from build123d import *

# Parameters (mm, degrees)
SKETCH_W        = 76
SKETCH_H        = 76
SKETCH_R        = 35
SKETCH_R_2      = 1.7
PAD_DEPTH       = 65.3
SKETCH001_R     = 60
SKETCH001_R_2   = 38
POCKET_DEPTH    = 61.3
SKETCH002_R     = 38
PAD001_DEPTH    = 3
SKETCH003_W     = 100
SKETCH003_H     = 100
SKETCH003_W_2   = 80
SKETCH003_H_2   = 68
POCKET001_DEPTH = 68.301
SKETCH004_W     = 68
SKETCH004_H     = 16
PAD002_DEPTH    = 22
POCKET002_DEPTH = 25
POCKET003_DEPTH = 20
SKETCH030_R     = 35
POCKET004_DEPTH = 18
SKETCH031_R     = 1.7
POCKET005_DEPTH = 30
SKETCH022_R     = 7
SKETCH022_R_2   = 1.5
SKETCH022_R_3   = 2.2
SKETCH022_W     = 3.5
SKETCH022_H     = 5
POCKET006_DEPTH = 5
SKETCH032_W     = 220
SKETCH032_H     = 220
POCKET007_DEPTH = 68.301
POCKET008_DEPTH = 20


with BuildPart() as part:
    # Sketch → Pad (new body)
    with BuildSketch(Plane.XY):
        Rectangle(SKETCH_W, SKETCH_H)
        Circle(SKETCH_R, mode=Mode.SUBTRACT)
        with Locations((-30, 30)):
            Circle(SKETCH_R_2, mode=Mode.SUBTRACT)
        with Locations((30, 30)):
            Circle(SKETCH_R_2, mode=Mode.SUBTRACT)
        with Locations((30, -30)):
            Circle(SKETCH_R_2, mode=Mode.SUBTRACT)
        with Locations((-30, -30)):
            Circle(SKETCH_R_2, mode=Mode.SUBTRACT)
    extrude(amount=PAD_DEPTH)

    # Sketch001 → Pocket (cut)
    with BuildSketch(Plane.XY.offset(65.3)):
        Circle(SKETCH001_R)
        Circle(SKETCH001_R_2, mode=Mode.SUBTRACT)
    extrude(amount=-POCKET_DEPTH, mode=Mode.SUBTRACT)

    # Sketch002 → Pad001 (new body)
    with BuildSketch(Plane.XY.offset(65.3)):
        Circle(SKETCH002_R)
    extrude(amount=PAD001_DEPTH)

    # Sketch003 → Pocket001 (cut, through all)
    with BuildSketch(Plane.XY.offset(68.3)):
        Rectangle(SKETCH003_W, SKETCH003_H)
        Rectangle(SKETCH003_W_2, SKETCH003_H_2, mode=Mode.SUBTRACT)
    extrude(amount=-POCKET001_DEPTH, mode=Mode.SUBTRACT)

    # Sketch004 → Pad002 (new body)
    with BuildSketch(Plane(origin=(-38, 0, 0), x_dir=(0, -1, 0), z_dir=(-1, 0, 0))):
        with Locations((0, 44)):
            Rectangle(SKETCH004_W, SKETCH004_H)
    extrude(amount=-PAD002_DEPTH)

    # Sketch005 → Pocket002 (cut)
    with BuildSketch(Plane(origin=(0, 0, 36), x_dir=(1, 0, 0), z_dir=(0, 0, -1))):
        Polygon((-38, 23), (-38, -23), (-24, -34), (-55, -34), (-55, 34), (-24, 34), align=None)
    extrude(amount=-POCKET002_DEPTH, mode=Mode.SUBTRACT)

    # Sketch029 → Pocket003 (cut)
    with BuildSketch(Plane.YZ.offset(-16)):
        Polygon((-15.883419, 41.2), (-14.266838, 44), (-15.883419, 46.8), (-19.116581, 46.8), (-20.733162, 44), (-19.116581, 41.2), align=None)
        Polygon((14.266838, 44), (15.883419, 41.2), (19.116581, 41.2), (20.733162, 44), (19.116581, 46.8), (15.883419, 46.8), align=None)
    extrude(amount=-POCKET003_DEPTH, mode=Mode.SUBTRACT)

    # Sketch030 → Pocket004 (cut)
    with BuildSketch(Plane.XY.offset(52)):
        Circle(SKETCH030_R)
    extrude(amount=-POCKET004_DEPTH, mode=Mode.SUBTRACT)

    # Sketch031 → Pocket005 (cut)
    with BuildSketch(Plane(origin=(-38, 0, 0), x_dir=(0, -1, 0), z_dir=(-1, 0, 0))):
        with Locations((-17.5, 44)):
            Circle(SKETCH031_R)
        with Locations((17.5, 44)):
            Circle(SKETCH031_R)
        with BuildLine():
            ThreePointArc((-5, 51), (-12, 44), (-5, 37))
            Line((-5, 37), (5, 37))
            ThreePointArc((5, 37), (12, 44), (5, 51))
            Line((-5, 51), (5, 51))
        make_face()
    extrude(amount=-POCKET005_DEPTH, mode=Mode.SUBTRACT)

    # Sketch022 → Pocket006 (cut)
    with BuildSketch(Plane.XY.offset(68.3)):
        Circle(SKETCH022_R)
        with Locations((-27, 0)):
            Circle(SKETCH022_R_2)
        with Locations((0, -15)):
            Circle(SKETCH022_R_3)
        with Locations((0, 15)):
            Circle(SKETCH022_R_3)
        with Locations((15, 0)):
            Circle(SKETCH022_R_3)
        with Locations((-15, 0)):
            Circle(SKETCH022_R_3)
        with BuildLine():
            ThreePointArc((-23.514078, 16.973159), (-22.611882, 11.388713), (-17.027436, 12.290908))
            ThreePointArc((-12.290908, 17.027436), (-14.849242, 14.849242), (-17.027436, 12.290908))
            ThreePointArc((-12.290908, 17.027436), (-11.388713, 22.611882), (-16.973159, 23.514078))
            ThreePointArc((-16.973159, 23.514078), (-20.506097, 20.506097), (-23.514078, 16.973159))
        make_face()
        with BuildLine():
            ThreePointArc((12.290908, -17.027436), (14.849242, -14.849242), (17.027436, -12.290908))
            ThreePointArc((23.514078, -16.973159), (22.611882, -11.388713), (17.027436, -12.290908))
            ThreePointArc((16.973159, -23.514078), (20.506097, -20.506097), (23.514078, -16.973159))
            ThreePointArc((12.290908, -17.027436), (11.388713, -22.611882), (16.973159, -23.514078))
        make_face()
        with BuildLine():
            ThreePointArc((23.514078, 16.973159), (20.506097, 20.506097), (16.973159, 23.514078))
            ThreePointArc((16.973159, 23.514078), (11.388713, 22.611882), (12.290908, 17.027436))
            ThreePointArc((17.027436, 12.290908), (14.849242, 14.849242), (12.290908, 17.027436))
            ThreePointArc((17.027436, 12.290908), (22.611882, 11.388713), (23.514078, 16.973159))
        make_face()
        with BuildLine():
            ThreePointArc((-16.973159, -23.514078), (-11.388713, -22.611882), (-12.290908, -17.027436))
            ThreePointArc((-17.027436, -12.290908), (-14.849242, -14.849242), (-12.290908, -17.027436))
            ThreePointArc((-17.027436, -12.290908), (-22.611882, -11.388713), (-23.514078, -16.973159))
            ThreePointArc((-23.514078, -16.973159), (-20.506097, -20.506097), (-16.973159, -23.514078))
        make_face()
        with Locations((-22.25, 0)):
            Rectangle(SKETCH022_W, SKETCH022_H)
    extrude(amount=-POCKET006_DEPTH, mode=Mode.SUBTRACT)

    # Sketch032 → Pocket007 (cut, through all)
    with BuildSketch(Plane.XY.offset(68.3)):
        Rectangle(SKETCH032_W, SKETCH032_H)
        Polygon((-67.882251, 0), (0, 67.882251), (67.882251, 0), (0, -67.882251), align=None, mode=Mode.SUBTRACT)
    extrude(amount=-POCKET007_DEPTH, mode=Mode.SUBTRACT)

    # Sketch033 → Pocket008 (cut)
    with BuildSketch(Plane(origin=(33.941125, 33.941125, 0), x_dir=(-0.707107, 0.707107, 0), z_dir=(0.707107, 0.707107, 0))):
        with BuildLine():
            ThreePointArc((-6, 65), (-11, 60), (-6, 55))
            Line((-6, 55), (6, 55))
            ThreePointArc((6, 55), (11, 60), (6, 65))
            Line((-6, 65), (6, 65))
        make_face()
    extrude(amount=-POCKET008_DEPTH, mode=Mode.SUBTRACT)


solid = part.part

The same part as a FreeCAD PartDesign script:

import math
import FreeCAD as App
import Part
import Sketcher
Q = App.Units.Quantity

doc = App.newDocument("Part")
body = doc.addObject("PartDesign::Body", "Body")

sketch1 = body.newObject("Sketcher::SketchObject", "Sketch")
sketch1.AttachmentSupport = (doc.getObject("XY_Plane"), [""])
sketch1.MapMode = "FlatFace"
sketch1.addGeometry([
    Part.LineSegment(App.Vector(-38, 38, 0), App.Vector(-38, -38, 0)),
    Part.LineSegment(App.Vector(-38, -38, 0), App.Vector(38, -38, 0)),
    Part.LineSegment(App.Vector(38, -38, 0), App.Vector(38, 38, 0)),
    Part.LineSegment(App.Vector(38, 38, 0), App.Vector(-38, 38, 0)),
    Part.Circle(App.Vector(-30, -30, 0), App.Vector(0, 0, 1), 1.7),
    Part.Circle(App.Vector(30, -30, 0), App.Vector(0, 0, 1), 1.7),
    Part.Circle(App.Vector(-30, 30, 0), App.Vector(0, 0, 1), 1.7),
    Part.Circle(App.Vector(0, 0, 0), App.Vector(0, 0, 1), 35),
    Part.Circle(App.Vector(30, 30, 0), App.Vector(0, 0, 1), 1.7),
], False)
sketch1.addConstraint([
    Sketcher.Constraint("Coincident", 0, 2, 1, 1),
    Sketcher.Constraint("Coincident", 1, 2, 2, 1),
    Sketcher.Constraint("Coincident", 2, 2, 3, 1),
    Sketcher.Constraint("Coincident", 3, 2, 0, 1),
    Sketcher.Constraint("Vertical", 0),
    Sketcher.Constraint("Horizontal", 1),
    Sketcher.Constraint("Vertical", 2),
    Sketcher.Constraint("Horizontal", 3),
    Sketcher.Constraint("Coincident", 7, 3, -1, 1),
    Sketcher.Constraint("Equal", 4, 5),
    Sketcher.Constraint("Equal", 5, 6),
    Sketcher.Constraint("Equal", 6, 8),
    Sketcher.Constraint("Symmetric", 5, 3, 6, 3, -1, 1),
    Sketcher.Constraint("Symmetric", 4, 3, 8, 3, -1, 1),
    Sketcher.Constraint("Symmetric", 0, 2, 2, 2, -1, 1),
    Sketcher.Constraint("Symmetric", 4, 3, 5, 3, -2),
    Sketcher.Constraint("Equal", 3, 0),
    Sketcher.Constraint("Diameter", 7, 70.0),
    Sketcher.Constraint("Diameter", 4, 3.4),
    Sketcher.Constraint("DistanceX", 1, 1, 1, 2, 76.0),
    Sketcher.Constraint("DistanceX", 4, 3, -1, 1, 30.0),
    Sketcher.Constraint("DistanceY", 4, 3, -1, 1, 30.0),
])
pad1 = body.newObject("PartDesign::Pad", "Pad")
pad1.Profile = sketch1
pad1.Length = 65.3

sketch2 = body.newObject("Sketcher::SketchObject", "Sketch001")
sketch2.AttachmentSupport = (doc.getObject("XY_Plane"), [""])
sketch2.MapMode = "FlatFace"
sketch2.AttachmentOffset = App.Placement(App.Vector(0, 0, 65.3), App.Rotation())
sketch2.addGeometry([
    Part.Circle(App.Vector(0, 0, 0), App.Vector(0, 0, 1), 60),
    Part.Circle(App.Vector(0, 0, 0), App.Vector(0, 0, 1), 38),
], False)
sketch2.addConstraint([
    Sketcher.Constraint("Coincident", 0, 3, -1, 1),
    Sketcher.Constraint("Coincident", 1, 3, -1, 1),
    Sketcher.Constraint("Diameter", 0, 120.0),
    Sketcher.Constraint("Diameter", 1, 76.0),
])
pocket1 = body.newObject("PartDesign::Pocket", "Pocket")
pocket1.Profile = sketch2
pocket1.Length = 61.3

sketch3 = body.newObject("Sketcher::SketchObject", "Sketch002")
sketch3.AttachmentSupport = (doc.getObject("XY_Plane"), [""])
sketch3.MapMode = "FlatFace"
sketch3.AttachmentOffset = App.Placement(App.Vector(0, 0, 65.3), App.Rotation())
sketch3.addGeometry(Part.Circle(App.Vector(0, 0, 0), App.Vector(0, 0, 1), 38), False)
sketch3.addConstraint([
    Sketcher.Constraint("Coincident", 0, 3, -1, 1),
    Sketcher.Constraint("Diameter", 0, 76.0),
])
pad2 = body.newObject("PartDesign::Pad", "Pad001")
pad2.Profile = sketch3
pad2.Length = 3

sketch4 = body.newObject("Sketcher::SketchObject", "Sketch003")
sketch4.AttachmentSupport = (doc.getObject("XY_Plane"), [""])
sketch4.MapMode = "FlatFace"
sketch4.AttachmentOffset = App.Placement(App.Vector(0, 0, 68.3), App.Rotation())
sketch4.addGeometry([
    Part.LineSegment(App.Vector(-50, 50, 0), App.Vector(-50, -50, 0)),
    Part.LineSegment(App.Vector(-50, -50, 0), App.Vector(50, -50, 0)),
    Part.LineSegment(App.Vector(50, -50, 0), App.Vector(50, 50, 0)),
    Part.LineSegment(App.Vector(50, 50, 0), App.Vector(-50, 50, 0)),
    Part.LineSegment(App.Vector(40, -34, 0), App.Vector(-40, -34, 0)),
    Part.LineSegment(App.Vector(-40, -34, 0), App.Vector(-40, 34, 0)),
    Part.LineSegment(App.Vector(-40, 34, 0), App.Vector(40, 34, 0)),
    Part.LineSegment(App.Vector(40, 34, 0), App.Vector(40, -34, 0)),
], False)
sketch4.addConstraint([
    Sketcher.Constraint("Coincident", 0, 2, 1, 1),
    Sketcher.Constraint("Coincident", 1, 2, 2, 1),
    Sketcher.Constraint("Coincident", 2, 2, 3, 1),
    Sketcher.Constraint("Coincident", 3, 2, 0, 1),
    Sketcher.Constraint("Coincident", 4, 2, 5, 1),
    Sketcher.Constraint("Coincident", 5, 2, 6, 1),
    Sketcher.Constraint("Coincident", 6, 2, 7, 1),
    Sketcher.Constraint("Coincident", 7, 2, 4, 1),
    Sketcher.Constraint("Vertical", 0),
    Sketcher.Constraint("Horizontal", 1),
    Sketcher.Constraint("Vertical", 2),
    Sketcher.Constraint("Horizontal", 3),
    Sketcher.Constraint("Horizontal", 4),
    Sketcher.Constraint("Vertical", 5),
    Sketcher.Constraint("Horizontal", 6),
    Sketcher.Constraint("Vertical", 7),
    Sketcher.Constraint("Symmetric", 0, 2, 2, 2, -1, 1),
    Sketcher.Constraint("Symmetric", 4, 2, 6, 2, -1, 1),
    Sketcher.Constraint("Equal", 3, 0),
    Sketcher.Constraint("DistanceX", 1, 1, 1, 2, 100.0),
    Sketcher.Constraint("DistanceX", 4, 2, 4, 1, 80.0),
    Sketcher.Constraint("DistanceY", 5, 1, 5, 2, 68.0),
])
pocket2 = body.newObject("PartDesign::Pocket", "Pocket001")
pocket2.Profile = sketch4
pocket2.Type = "ThroughAll"

sketch5 = body.newObject("Sketcher::SketchObject", "Sketch004")
sketch5.AttachmentSupport = (doc.getObject("YZ_Plane"), [""])
sketch5.MapMode = "FlatFace"
sketch5.AttachmentOffset = App.Placement(App.Vector(0, 0, -38), App.Rotation())
sketch5.addGeometry([
    Part.LineSegment(App.Vector(34, 52, 0), App.Vector(34, 36, 0)),
    Part.LineSegment(App.Vector(34, 36, 0), App.Vector(-34, 36, 0)),
    Part.LineSegment(App.Vector(-34, 36, 0), App.Vector(-34, 52, 0)),
    Part.LineSegment(App.Vector(-34, 52, 0), App.Vector(34, 52, 0)),
], False)
sketch5.addConstraint([
    Sketcher.Constraint("Coincident", 0, 2, 1, 1),
    Sketcher.Constraint("Coincident", 1, 2, 2, 1),
    Sketcher.Constraint("Coincident", 2, 2, 3, 1),
    Sketcher.Constraint("Coincident", 3, 2, 0, 1),
    Sketcher.Constraint("Vertical", 0),
    Sketcher.Constraint("Horizontal", 1),
    Sketcher.Constraint("Vertical", 2),
    Sketcher.Constraint("Horizontal", 3),
    Sketcher.Constraint("DistanceX", 1, 2, 1, 1, 68.0),
    Sketcher.Constraint("DistanceY", 0, 2, 0, 1, 16.0),
    Sketcher.Constraint("DistanceX", -1, 1, 0, 2, 34.0),
    Sketcher.Constraint("DistanceY", -1, 1, 0, 2, 36.0),
])
pad3 = body.newObject("PartDesign::Pad", "Pad002")
pad3.Profile = sketch5
pad3.Length = 22

sketch6 = body.newObject("Sketcher::SketchObject", "Sketch005")
sketch6.AttachmentSupport = (doc.getObject("XY_Plane"), [""])
sketch6.MapMode = "FlatFace"
sketch6.AttachmentOffset = App.Placement(App.Vector(0, 0, 36), App.Rotation())
sketch6.addGeometry([
    Part.LineSegment(App.Vector(-38, 23, 0), App.Vector(-38, -23, 0)),
    Part.LineSegment(App.Vector(-38, -23, 0), App.Vector(-24, -34, 0)),
    Part.LineSegment(App.Vector(-24, -34, 0), App.Vector(-55, -34, 0)),
    Part.LineSegment(App.Vector(-55, -34, 0), App.Vector(-55, 34, 0)),
    Part.LineSegment(App.Vector(-55, 34, 0), App.Vector(-24, 34, 0)),
    Part.LineSegment(App.Vector(-24, 34, 0), App.Vector(-38, 23, 0)),
], False)
sketch6.addConstraint([
    Sketcher.Constraint("Coincident", 0, 2, 1, 1),
    Sketcher.Constraint("Coincident", 1, 2, 2, 1),
    Sketcher.Constraint("Coincident", 2, 2, 3, 1),
    Sketcher.Constraint("Coincident", 3, 2, 4, 1),
    Sketcher.Constraint("Coincident", 4, 2, 5, 1),
    Sketcher.Constraint("Coincident", 5, 2, 0, 1),
    Sketcher.Constraint("Vertical", 0),
    Sketcher.Constraint("Horizontal", 2),
    Sketcher.Constraint("Vertical", 3),
    Sketcher.Constraint("Horizontal", 4),
    Sketcher.Constraint("Symmetric", 1, 2, 4, 2, -1),
    Sketcher.Constraint("Equal", 1, 5),
    Sketcher.Constraint("DistanceX", 2, 2, 2, 1, 31.0),
    Sketcher.Constraint("DistanceY", 0, 2, 0, 1, 46.0),
    Sketcher.Constraint("DistanceY", 3, 1, 3, 2, 68.0),
    Sketcher.Constraint("DistanceX", 0, 2, -1, 1, 38.0),
    Sketcher.Constraint("DistanceX", 1, 2, -1, 1, 24.0),
])
pocket3 = body.newObject("PartDesign::Pocket", "Pocket002")
pocket3.Profile = sketch6
pocket3.Length = 25
pocket3.Reversed = True

sketch7 = body.newObject("Sketcher::SketchObject", "Sketch006")
sketch7.AttachmentSupport = (doc.getObject("YZ_Plane"), [""])
sketch7.MapMode = "FlatFace"
sketch7.AttachmentOffset = App.Placement(App.Vector(0, 0, -16), App.Rotation())
sketch7.addGeometry([
    Part.LineSegment(App.Vector(-15.9, 41.2, 0), App.Vector(-14.3, 44, 0)),
    Part.LineSegment(App.Vector(-14.3, 44, 0), App.Vector(-15.9, 46.8, 0)),
    Part.LineSegment(App.Vector(-15.9, 46.8, 0), App.Vector(-19.1, 46.8, 0)),
    Part.LineSegment(App.Vector(-19.1, 46.8, 0), App.Vector(-20.7, 44, 0)),
    Part.LineSegment(App.Vector(-20.7, 44, 0), App.Vector(-19.1, 41.2, 0)),
    Part.LineSegment(App.Vector(-19.1, 41.2, 0), App.Vector(-15.9, 41.2, 0)),
    Part.LineSegment(App.Vector(14.3, 44, 0), App.Vector(15.9, 41.2, 0)),
    Part.LineSegment(App.Vector(15.9, 41.2, 0), App.Vector(19.1, 41.2, 0)),
    Part.LineSegment(App.Vector(19.1, 41.2, 0), App.Vector(20.7, 44, 0)),
    Part.LineSegment(App.Vector(20.7, 44, 0), App.Vector(19.1, 46.8, 0)),
    Part.LineSegment(App.Vector(19.1, 46.8, 0), App.Vector(15.9, 46.8, 0)),
    Part.LineSegment(App.Vector(15.9, 46.8, 0), App.Vector(14.3, 44, 0)),
], False)
sketch7.addConstraint([
    Sketcher.Constraint("Coincident", 0, 2, 1, 1),
    Sketcher.Constraint("Coincident", 1, 2, 2, 1),
    Sketcher.Constraint("Coincident", 2, 2, 3, 1),
    Sketcher.Constraint("Coincident", 3, 2, 4, 1),
    Sketcher.Constraint("Coincident", 4, 2, 5, 1),
    Sketcher.Constraint("Coincident", 5, 2, 0, 1),
    Sketcher.Constraint("Coincident", 6, 2, 7, 1),
    Sketcher.Constraint("Coincident", 7, 2, 8, 1),
    Sketcher.Constraint("Coincident", 8, 2, 9, 1),
    Sketcher.Constraint("Coincident", 9, 2, 10, 1),
    Sketcher.Constraint("Coincident", 10, 2, 11, 1),
    Sketcher.Constraint("Coincident", 11, 2, 6, 1),
    Sketcher.Constraint("Horizontal", 2),
    Sketcher.Constraint("Horizontal", 5),
    Sketcher.Constraint("Horizontal", 7),
    Sketcher.Constraint("Horizontal", 10),
    Sketcher.Constraint("Symmetric", 5, 2, 6, 2, -2),
    Sketcher.Constraint("Symmetric", 3, 2, 8, 2, -2),
    Sketcher.Constraint("Symmetric", 2, 2, 9, 2, -2),
    Sketcher.Constraint("Symmetric", 0, 2, 11, 2, -2),
    Sketcher.Constraint("Parallel", 0, 3),
    Sketcher.Constraint("Parallel", 1, 4),
    Sketcher.Constraint("Parallel", 4, 6),
    Sketcher.Constraint("Parallel", 3, 8),
    Sketcher.Constraint("Parallel", 8, 11),
    Sketcher.Constraint("Horizontal", 0, 2, 3, 2),
    Sketcher.Constraint("Vertical", 2, 2, 4, 2),
    Sketcher.Constraint("Angle", 0, Q("59.999996 deg")),
    Sketcher.Constraint("DistanceY", -1, 1, 0, 2, 44.0),
    Sketcher.Constraint("DistanceX", 4, 2, 6, 2, 35.0),
    Sketcher.Constraint("DistanceY", -1, 1, 1, 2, 46.8),
    Sketcher.Constraint("DistanceX", 2, 2, 2, 1, 3.233162),
])
pocket4 = body.newObject("PartDesign::Pocket", "Pocket003")
pocket4.Profile = sketch7
pocket4.Length = 20

sketch8 = body.newObject("Sketcher::SketchObject", "Sketch007")
sketch8.AttachmentSupport = (doc.getObject("XY_Plane"), [""])
sketch8.MapMode = "FlatFace"
sketch8.AttachmentOffset = App.Placement(App.Vector(0, 0, 52), App.Rotation())
sketch8.addGeometry(Part.Circle(App.Vector(0, 0, 0), App.Vector(0, 0, 1), 35), False)
sketch8.addConstraint([
    Sketcher.Constraint("Coincident", 0, 3, -1, 1),
    Sketcher.Constraint("Diameter", 0, 70.0),
])
pocket5 = body.newObject("PartDesign::Pocket", "Pocket004")
pocket5.Profile = sketch8
pocket5.Length = 18

sketch9 = body.newObject("Sketcher::SketchObject", "Sketch008")
sketch9.AttachmentSupport = (doc.getObject("YZ_Plane"), [""])
sketch9.MapMode = "FlatFace"
sketch9.AttachmentOffset = App.Placement(App.Vector(0, 0, -38), App.Rotation())
sketch9.addGeometry([
    Part.Circle(App.Vector(17.5, 44, 0), App.Vector(0, 0, 1), 1.7),
    Part.Circle(App.Vector(-17.5, 44, 0), App.Vector(0, 0, 1), 1.7),
    Part.ArcOfCircle(Part.Circle(App.Vector(5, 44, 0), App.Vector(0, 0, 1), 7), math.radians(-90), math.radians(90)),
    Part.LineSegment(App.Vector(5, 37, 0), App.Vector(-5, 37, 0)),
    Part.ArcOfCircle(Part.Circle(App.Vector(-5, 44, 0), App.Vector(0, 0, 1), 7), math.radians(90), math.radians(270)),
    Part.LineSegment(App.Vector(-5, 51, 0), App.Vector(5, 51, 0)),
], False)
sketch9.addConstraint([
    Sketcher.Constraint("Tangent", 2, 1, 3, 1),
    Sketcher.Constraint("Tangent", 3, 2, 4, 2),
    Sketcher.Constraint("Tangent", 4, 1, 5, 1),
    Sketcher.Constraint("Tangent", 5, 2, 2, 2),
    Sketcher.Constraint("Horizontal", 3),
    Sketcher.Constraint("Horizontal", 5),
    Sketcher.Constraint("Equal", 0, 1),
    Sketcher.Constraint("Symmetric", 0, 3, 1, 3, -2),
    Sketcher.Constraint("Horizontal", 1, 3, 2, 3),
    Sketcher.Constraint("Radius", 2, 7.0),
    Sketcher.Constraint("Diameter", 0, 3.4),
    Sketcher.Constraint("DistanceX", 3, 2, 3, 1, 10.0),
    Sketcher.Constraint("DistanceY", -1, 1, 0, 3, 44.0),
    Sketcher.Constraint("DistanceX", -1, 1, 2, 3, 5.0),
    Sketcher.Constraint("DistanceX", 1, 3, 0, 3, 35.0),
])
pocket6 = body.newObject("PartDesign::Pocket", "Pocket005")
pocket6.Profile = sketch9
pocket6.Length = 30
pocket6.Reversed = True

sketch10 = body.newObject("Sketcher::SketchObject", "Sketch009")
sketch10.AttachmentSupport = (doc.getObject("XY_Plane"), [""])
sketch10.MapMode = "FlatFace"
sketch10.AttachmentOffset = App.Placement(App.Vector(0, 0, 68.3), App.Rotation())
sketch10.addGeometry([
    Part.Circle(App.Vector(0, 0, 0), App.Vector(0, 0, 1), 7),
    Part.Circle(App.Vector(-27, 0, 0), App.Vector(0, 0, 1), 1.5),
    Part.Circle(App.Vector(0, -15, 0), App.Vector(0, 0, 1), 2.2),
    Part.Circle(App.Vector(0, 15, 0), App.Vector(0, 0, 1), 2.2),
    Part.Circle(App.Vector(15, 0, 0), App.Vector(0, 0, 1), 2.2),
    Part.Circle(App.Vector(-15, 0, 0), App.Vector(0, 0, 1), 2.2),
    Part.ArcOfCircle(Part.Circle(App.Vector(-20.270757, 14.632034, 0), App.Vector(0, 0, 1), 4), math.radians(144.177139), math.radians(324.177119)),
    Part.ArcOfCircle(Part.Circle(App.Vector(0.000027, -0.000027, 0), App.Vector(0, 0, 1), 21.000037), math.radians(125.822884), math.radians(144.177116)),
    Part.ArcOfCircle(Part.Circle(App.Vector(-14.632034, 20.270757, 0), App.Vector(0, 0, 1), 4), math.radians(-54.177119), math.radians(125.822861)),
    Part.ArcOfCircle(Part.Circle(App.Vector(-0.000036, 0.000036, 0), App.Vector(0, 0, 1), 28.99995), math.radians(125.822852), math.radians(144.177148)),
    Part.ArcOfCircle(Part.Circle(App.Vector(-0.000027, 0.000027, 0), App.Vector(0, 0, 1), 21.000037), math.radians(-54.177116), math.radians(-35.822884)),
    Part.ArcOfCircle(Part.Circle(App.Vector(14.632034, -20.270757, 0), App.Vector(0, 0, 1), 4), math.radians(125.822881), math.radians(305.822861)),
    Part.ArcOfCircle(Part.Circle(App.Vector(0.000036, -0.000036, 0), App.Vector(0, 0, 1), 28.99995), math.radians(-54.177148), math.radians(-35.822852)),
    Part.ArcOfCircle(Part.Circle(App.Vector(20.270757, -14.632034, 0), App.Vector(0, 0, 1), 4), math.radians(-35.822861), math.radians(144.177119)),
    Part.ArcOfCircle(Part.Circle(App.Vector(0.000036, 0.000036, 0), App.Vector(0, 0, 1), 28.99995), math.radians(35.822852), math.radians(54.177148)),
    Part.ArcOfCircle(Part.Circle(App.Vector(14.632034, 20.270757, 0), App.Vector(0, 0, 1), 4), math.radians(54.177139), math.radians(234.177119)),
    Part.ArcOfCircle(Part.Circle(App.Vector(-0.000027, -0.000027, 0), App.Vector(0, 0, 1), 21.000037), math.radians(35.822884), math.radians(54.177116)),
    Part.ArcOfCircle(Part.Circle(App.Vector(20.270757, 14.632034, 0), App.Vector(0, 0, 1), 4), math.radians(-144.177119), math.radians(35.822861)),
    Part.ArcOfCircle(Part.Circle(App.Vector(-14.632034, -20.270757, 0), App.Vector(0, 0, 1), 4), math.radians(-125.822861), math.radians(54.177119)),
    Part.ArcOfCircle(Part.Circle(App.Vector(0.000027, 0.000027, 0), App.Vector(0, 0, 1), 21.000037), math.radians(-144.177116), math.radians(-125.822884)),
    Part.ArcOfCircle(Part.Circle(App.Vector(-20.270757, -14.632034, 0), App.Vector(0, 0, 1), 4), math.radians(35.822881), math.radians(215.822861)),
    Part.ArcOfCircle(Part.Circle(App.Vector(-0.000036, -0.000036, 0), App.Vector(0, 0, 1), 28.99995), math.radians(-144.177148), math.radians(-125.822852)),
    Part.LineSegment(App.Vector(-24, 2.5, 0), App.Vector(-24, -2.5, 0)),
    Part.LineSegment(App.Vector(-24, -2.5, 0), App.Vector(-20.5, -2.5, 0)),
    Part.LineSegment(App.Vector(-20.5, -2.5, 0), App.Vector(-20.5, 2.5, 0)),
    Part.LineSegment(App.Vector(-20.5, 2.5, 0), App.Vector(-24, 2.5, 0)),
], False)
sketch10.addConstraint([
    Sketcher.Constraint("Tangent", 6, 2, 7, 2),
    Sketcher.Constraint("Tangent", 7, 1, 8, 1),
    Sketcher.Constraint("Tangent", 8, 2, 9, 1),
    Sketcher.Constraint("Tangent", 9, 2, 6, 1),
    Sketcher.Constraint("Tangent", 10, 1, 11, 1),
    Sketcher.Constraint("Tangent", 11, 2, 12, 1),
    Sketcher.Constraint("Tangent", 12, 2, 13, 1),
    Sketcher.Constraint("Tangent", 13, 2, 10, 2),
    Sketcher.Constraint("Tangent", 14, 2, 15, 1),
    Sketcher.Constraint("Tangent", 15, 2, 16, 2),
    Sketcher.Constraint("Tangent", 16, 1, 17, 1),
    Sketcher.Constraint("Tangent", 17, 2, 14, 1),
    Sketcher.Constraint("Tangent", 18, 2, 19, 2),
    Sketcher.Constraint("Tangent", 19, 1, 20, 1),
    Sketcher.Constraint("Tangent", 20, 2, 21, 1),
    Sketcher.Constraint("Tangent", 21, 2, 18, 1),
    Sketcher.Constraint("Coincident", 22, 2, 23, 1),
    Sketcher.Constraint("Coincident", 23, 2, 24, 1),
    Sketcher.Constraint("Coincident", 24, 2, 25, 1),
    Sketcher.Constraint("Coincident", 25, 2, 22, 1),
    Sketcher.Constraint("Vertical", 22),
    Sketcher.Constraint("Horizontal", 23),
    Sketcher.Constraint("Vertical", 24),
    Sketcher.Constraint("Horizontal", 25),
    Sketcher.Constraint("Coincident", 0, 3, -1, 1),
    Sketcher.Constraint("Equal", 2, 3),
    Sketcher.Constraint("Equal", 3, 4),
    Sketcher.Constraint("Equal", 4, 5),
    Sketcher.Constraint("Equal", 6, 8),
    Sketcher.Constraint("Equal", 7, 10),
    Sketcher.Constraint("Equal", 8, 11),
    Sketcher.Constraint("Equal", 9, 12),
    Sketcher.Constraint("Equal", 11, 13),
    Sketcher.Constraint("Equal", 12, 14),
    Sketcher.Constraint("Equal", 13, 15),
    Sketcher.Constraint("Equal", 10, 16),
    Sketcher.Constraint("Equal", 15, 17),
    Sketcher.Constraint("Equal", 17, 18),
    Sketcher.Constraint("Equal", 16, 19),
    Sketcher.Constraint("Equal", 18, 20),
    Sketcher.Constraint("Equal", 14, 21),
    Sketcher.Constraint("Symmetric", 2, 3, 3, 3, -1, 1),
    Sketcher.Constraint("Symmetric", 4, 3, 5, 3, -1, 1),
    Sketcher.Constraint("Symmetric", 7, 3, 10, 3, -1, 1),
    Sketcher.Constraint("Symmetric", 15, 3, 18, 3, -1, 1),
    Sketcher.Constraint("Symmetric", 17, 3, 20, 3, -1, 1),
    Sketcher.Constraint("Symmetric", 9, 3, 14, 3, -2),
    Sketcher.Constraint("PointOnObject", 1, 3, -1),
    Sketcher.Constraint("PointOnObject", 2, 3, -2),
    Sketcher.Constraint("PointOnObject", 4, 3, -1),
    Sketcher.Constraint("Horizontal", 8, 3, 15, 3),
    Sketcher.Constraint("Horizontal", 6, 3, 17, 3),
    Sketcher.Constraint("Horizontal", 11, 3, 18, 3),
    Sketcher.Constraint("Horizontal", 13, 3, 20, 3),
    Sketcher.Constraint("Diameter", 0, 14.0),
    Sketcher.Constraint("Diameter", 1, 3.0),
    Sketcher.Constraint("Radius", 6, 4.0),
    Sketcher.Constraint("Diameter", 2, 4.4),
    Sketcher.Constraint("DistanceY", 22, 2, 22, 1, 5.0),
    Sketcher.Constraint("DistanceX", 23, 1, 23, 2, 3.5),
    Sketcher.Constraint("DistanceX", 1, 3, -1, 1, 27.0),
    Sketcher.Constraint("DistanceY", 2, 3, -1, 1, 15.0),
    Sketcher.Constraint("DistanceX", -1, 1, 4, 3, 15.0),
    Sketcher.Constraint("DistanceX", 22, 2, -1, 1, 24.0),
    Sketcher.Constraint("DistanceY", 22, 2, -1, 1, 2.5),
    Sketcher.Constraint("Radius", 9, 28.99995),
    Sketcher.Constraint("Radius", 7, 21.000037),
    Sketcher.Constraint("DistanceY", 13, 3, 12, 3, 14.631998),
    Sketcher.Constraint("DistanceX", 14, 3, 15, 3, 14.631998),
    Sketcher.Constraint("DistanceY", -1, 1, 6, 2, 12.290908),
    Sketcher.Constraint("DistanceX", 7, 1, -1, 1, 12.290908),
])
pocket7 = body.newObject("PartDesign::Pocket", "Pocket006")
pocket7.Profile = sketch10
pocket7.Length = 5

sketch11 = body.newObject("Sketcher::SketchObject", "Sketch010")
sketch11.AttachmentSupport = (doc.getObject("XY_Plane"), [""])
sketch11.MapMode = "FlatFace"
sketch11.AttachmentOffset = App.Placement(App.Vector(0, 0, 68.3), App.Rotation())
sketch11.addGeometry([
    Part.LineSegment(App.Vector(-110, 110, 0), App.Vector(-110, -110, 0)),
    Part.LineSegment(App.Vector(-110, -110, 0), App.Vector(110, -110, 0)),
    Part.LineSegment(App.Vector(110, -110, 0), App.Vector(110, 110, 0)),
    Part.LineSegment(App.Vector(110, 110, 0), App.Vector(-110, 110, 0)),
    Part.LineSegment(App.Vector(0, -68, 0), App.Vector(-68, 0, 0)),
    Part.LineSegment(App.Vector(-68, 0, 0), App.Vector(0, 68, 0)),
    Part.LineSegment(App.Vector(0, 68, 0), App.Vector(68, 0, 0)),
    Part.LineSegment(App.Vector(68, 0, 0), App.Vector(0, -68, 0)),
], False)
sketch11.addConstraint([
    Sketcher.Constraint("Coincident", 0, 2, 1, 1),
    Sketcher.Constraint("Coincident", 1, 2, 2, 1),
    Sketcher.Constraint("Coincident", 2, 2, 3, 1),
    Sketcher.Constraint("Coincident", 3, 2, 0, 1),
    Sketcher.Constraint("Coincident", 4, 2, 5, 1),
    Sketcher.Constraint("Coincident", 5, 2, 6, 1),
    Sketcher.Constraint("Coincident", 6, 2, 7, 1),
    Sketcher.Constraint("Coincident", 7, 2, 4, 1),
    Sketcher.Constraint("Vertical", 0),
    Sketcher.Constraint("Horizontal", 1),
    Sketcher.Constraint("Vertical", 2),
    Sketcher.Constraint("Horizontal", 3),
    Sketcher.Constraint("Symmetric", 0, 2, 2, 2, -1, 1),
    Sketcher.Constraint("Symmetric", 4, 2, 6, 2, -1, 1),
    Sketcher.Constraint("Symmetric", 5, 2, 7, 2, -1, 1),
    Sketcher.Constraint("PointOnObject", 4, 2, -1),
    Sketcher.Constraint("PointOnObject", 5, 2, -2),
    Sketcher.Constraint("Perpendicular", 4, 5),
    Sketcher.Constraint("Equal", 3, 0),
    Sketcher.Constraint("DistanceX", 1, 1, 1, 2, 220.0),
    Sketcher.Constraint("Distance", 4, 96.0),
])
pocket8 = body.newObject("PartDesign::Pocket", "Pocket007")
pocket8.Profile = sketch11
pocket8.Type = "ThroughAll"

sketch12 = body.newObject("Sketcher::SketchObject", "Sketch011")
sketch12.Placement = App.Placement(App.Vector(33.941125, 33.941125, 0), App.Rotation(App.Vector(-0.707106781, 0.707106781, 0), App.Vector(0, 0, 0.999999999), App.Vector(0.707106781, 0.707106781, 0), "ZXY"))
sketch12.addGeometry([
    Part.ArcOfCircle(Part.Circle(App.Vector(-6, 60, 0), App.Vector(0, 0, 1), 5), math.radians(90), math.radians(270)),
    Part.LineSegment(App.Vector(-6, 55, 0), App.Vector(6, 55, 0)),
    Part.ArcOfCircle(Part.Circle(App.Vector(6, 60, 0), App.Vector(0, 0, 1), 5), math.radians(-90), math.radians(90)),
    Part.LineSegment(App.Vector(6, 65, 0), App.Vector(-6, 65, 0)),
], False)
sketch12.addConstraint([
    Sketcher.Constraint("Tangent", 0, 2, 1, 1),
    Sketcher.Constraint("Tangent", 1, 2, 2, 1),
    Sketcher.Constraint("Tangent", 2, 2, 3, 1),
    Sketcher.Constraint("Tangent", 3, 2, 0, 1),
    Sketcher.Constraint("Horizontal", 1),
    Sketcher.Constraint("Horizontal", 3),
    Sketcher.Constraint("Radius", 0, 5.0),
    Sketcher.Constraint("DistanceX", 1, 1, 1, 2, 12.0),
    Sketcher.Constraint("DistanceX", 0, 3, -1, 1, 6.0),
    Sketcher.Constraint("DistanceY", -1, 1, 0, 3, 60.0),
])
pocket9 = body.newObject("PartDesign::Pocket", "Pocket008")
pocket9.Profile = sketch12
pocket9.Length = 20

doc.recompute()
